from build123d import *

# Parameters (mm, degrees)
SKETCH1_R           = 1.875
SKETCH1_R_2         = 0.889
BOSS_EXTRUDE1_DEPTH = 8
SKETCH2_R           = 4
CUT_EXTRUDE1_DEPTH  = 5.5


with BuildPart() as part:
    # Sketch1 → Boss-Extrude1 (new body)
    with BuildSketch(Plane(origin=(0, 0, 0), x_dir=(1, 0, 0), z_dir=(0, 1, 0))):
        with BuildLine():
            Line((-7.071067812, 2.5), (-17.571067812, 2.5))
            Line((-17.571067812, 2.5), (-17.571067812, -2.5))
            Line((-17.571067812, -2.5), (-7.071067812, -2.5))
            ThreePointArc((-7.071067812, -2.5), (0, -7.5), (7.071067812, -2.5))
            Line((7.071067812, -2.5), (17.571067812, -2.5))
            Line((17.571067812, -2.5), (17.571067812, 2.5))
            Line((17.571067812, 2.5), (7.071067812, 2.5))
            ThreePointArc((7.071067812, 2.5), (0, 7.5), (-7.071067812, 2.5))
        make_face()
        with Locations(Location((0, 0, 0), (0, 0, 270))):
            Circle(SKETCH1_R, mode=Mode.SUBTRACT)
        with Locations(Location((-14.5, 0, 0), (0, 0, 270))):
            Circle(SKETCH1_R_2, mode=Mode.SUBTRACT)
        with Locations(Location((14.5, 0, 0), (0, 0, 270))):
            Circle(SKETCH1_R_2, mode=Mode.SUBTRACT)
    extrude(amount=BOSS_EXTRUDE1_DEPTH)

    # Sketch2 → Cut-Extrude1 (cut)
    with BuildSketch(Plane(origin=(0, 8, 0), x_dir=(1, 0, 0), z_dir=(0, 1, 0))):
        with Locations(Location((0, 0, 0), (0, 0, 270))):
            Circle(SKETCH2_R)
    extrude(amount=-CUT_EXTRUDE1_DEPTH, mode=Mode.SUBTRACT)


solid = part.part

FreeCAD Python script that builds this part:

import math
import FreeCAD as App
import Part
import Sketcher

V = App.Vector
Q = App.Units.Quantity

doc = App.newDocument("Part")
body = doc.addObject("PartDesign::Body", "Body")

# Sketch on XZ plane
sketch1 = body.newObject("Sketcher::SketchObject", "Sketch")
sketch1.AttachmentSupport = (doc.getObject("XZ_Plane"), [""])
sketch1.MapMode = "FlatFace"
sketch1.addGeometry([
    Part.LineSegment(V(-7.071068, -2.5, 0), V(-17.571068, -2.5, 0)),  # 0
    Part.LineSegment(V(-17.571068, -2.5, 0), V(-17.571068, 2.5, 0)),  # 1
    Part.LineSegment(V(-17.571068, 2.5, 0), V(-7.071068, 2.5, 0)),  # 2
    Part.ArcOfCircle(Part.Circle(V(0, 0, 0), V(0, 0, 1), 7.5), math.radians(19.471221), math.radians(160.528779)),  # 3
    Part.LineSegment(V(7.071068, 2.5, 0), V(17.571068, 2.5, 0)),  # 4
    Part.LineSegment(V(17.571068, 2.5, 0), V(17.571068, -2.5, 0)),  # 5
    Part.LineSegment(V(17.571068, -2.5, 0), V(7.071068, -2.5, 0)),  # 6
    Part.ArcOfCircle(Part.Circle(V(0, 0, 0), V(0, 0, 1), 7.5), math.radians(-160.528779), math.radians(-19.471221)),  # 7
    Part.Circle(V(-14.5, 0, 0), V(0, 0, 1), 0.889),  # 8
    Part.Circle(V(0, 0, 0), V(0, 0, 1), 1.875),  # 9
    Part.Circle(V(14.5, 0, 0), V(0, 0, 1), 0.889),  # 10
], False)
sketch1.addConstraint([
    Sketcher.Constraint("Coincident", 0, 2, 1, 1),
    Sketcher.Constraint("Coincident", 1, 2, 2, 1),
    Sketcher.Constraint("Coincident", 2, 2, 3, 2),
    Sketcher.Constraint("Coincident", 3, 1, 4, 1),
    Sketcher.Constraint("Coincident", 4, 2, 5, 1),
    Sketcher.Constraint("Coincident", 5, 2, 6, 1),
    Sketcher.Constraint("Coincident", 6, 2, 7, 2),
    Sketcher.Constraint("Coincident", 7, 1, 0, 1),
    Sketcher.Constraint("Horizontal", 0),
    Sketcher.Constraint("Vertical", 1),
    Sketcher.Constraint("Horizontal", 2),
    Sketcher.Constraint("Horizontal", 4),
    Sketcher.Constraint("Vertical", 5),
    Sketcher.Constraint("Horizontal", 6),
    Sketcher.Constraint("Coincident", 3, 3, -1, 1),
    Sketcher.Constraint("Coincident", 7, 3, -1, 1),
    Sketcher.Constraint("Coincident", 9, 3, -1, 1),
    Sketcher.Constraint("Equal", 3, 7),
    Sketcher.Constraint("Equal", 8, 10),
    Sketcher.Constraint("Symmetric", 8, 3, 10, 3, -1, 1),
    Sketcher.Constraint("Symmetric", 0, 2, 4, 2, -1, 1),
    Sketcher.Constraint("PointOnObject", 8, 3, -1),
    Sketcher.Constraint("Horizontal", 2, 2, 3, 1),
    Sketcher.Constraint("Horizontal", 0, 2, 5, 2),
    Sketcher.Constraint("Radius", 3, Q("7.5 mm")),
    Sketcher.Constraint("Diameter", 9, Q("3.75 mm")),
    Sketcher.Constraint("DistanceY", 1, 1, 1, 2, Q("5 mm")),
    Sketcher.Constraint("Diameter", 8, Q("1.778 mm")),
    Sketcher.Constraint("DistanceX", 0, 2, 0, 1, Q("10.5 mm")),
    Sketcher.Constraint("DistanceX", 8, 3, 10, 3, Q("29 mm")),
])
pad1 = body.newObject("PartDesign::Pad", "Pad")
pad1.Profile = sketch1
pad1.Length = 8
pad1.Reversed = True

# Sketch on XZ plane
sketch2 = body.newObject("Sketcher::SketchObject", "Sketch001")
sketch2.AttachmentSupport = (doc.getObject("XZ_Plane"), [""])
sketch2.MapMode = "FlatFace"
sketch2.AttachmentOffset = App.Placement(V(0, 0, -8), App.Rotation())
sketch2.addGeometry(Part.Circle(V(0, 0, 0), V(0, 0, 1), 4), False)
sketch2.addConstraint([
    Sketcher.Constraint("Coincident", 0, 3, -1, 1),
    Sketcher.Constraint("Diameter", 0, Q("8 mm")),
])
pocket1 = body.newObject("PartDesign::Pocket", "Pocket")
pocket1.Profile = sketch2
pocket1.Length = 5.5
pocket1.Reversed = True

doc.recompute()
